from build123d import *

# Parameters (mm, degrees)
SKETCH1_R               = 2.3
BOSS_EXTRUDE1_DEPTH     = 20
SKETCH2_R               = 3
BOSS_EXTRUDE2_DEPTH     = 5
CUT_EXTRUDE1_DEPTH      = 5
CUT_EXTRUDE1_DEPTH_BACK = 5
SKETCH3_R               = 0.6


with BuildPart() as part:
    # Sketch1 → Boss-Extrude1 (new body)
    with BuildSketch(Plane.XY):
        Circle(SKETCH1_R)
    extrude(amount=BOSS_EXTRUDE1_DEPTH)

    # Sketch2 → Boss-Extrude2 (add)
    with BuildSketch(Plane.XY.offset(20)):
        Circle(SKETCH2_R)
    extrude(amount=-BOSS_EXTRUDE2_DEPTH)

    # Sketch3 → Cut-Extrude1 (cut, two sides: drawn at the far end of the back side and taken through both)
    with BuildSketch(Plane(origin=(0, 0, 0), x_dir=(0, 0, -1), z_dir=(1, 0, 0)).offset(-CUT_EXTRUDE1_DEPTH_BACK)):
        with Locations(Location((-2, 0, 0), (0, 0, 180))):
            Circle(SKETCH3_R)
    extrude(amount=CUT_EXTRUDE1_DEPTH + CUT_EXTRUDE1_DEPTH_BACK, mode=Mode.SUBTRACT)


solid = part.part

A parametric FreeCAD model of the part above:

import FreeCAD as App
import Part
import Sketcher
from FreeCAD import Vector
Q = App.Units.Quantity

doc = App.newDocument("Part")
body = doc.addObject("PartDesign::Body", "Body")

# Sketch on XY plane
sketch1 = body.newObject("Sketcher::SketchObject", "Sketch")
sketch1.AttachmentSupport = (doc.getObject("XY_Plane"), [""])
sketch1.MapMode = "FlatFace"
sketch1.addGeometry(Part.Circle(Vector(0, 0, 0), Vector(0, 0, 1), 2.3), False)
sketch1.addConstraint([
    Sketcher.Constraint("Coincident", 0, 3, -1, 1),
    Sketcher.Constraint("Diameter", 0, Q("4.6 mm")),
])
pad1 = body.newObject("PartDesign::Pad", "Pad")
pad1.Profile = sketch1
pad1.Length = 20

# Sketch on XY plane
sketch2 = body.newObject("Sketcher::SketchObject", "Sketch001")
sketch2.AttachmentSupport = (doc.getObject("XY_Plane"), [""])
sketch2.MapMode = "FlatFace"
sketch2.AttachmentOffset = App.Placement(Vector(0, 0, 20), App.Rotation())
sketch2.addGeometry(Part.Circle(Vector(0, 0, 0), Vector(0, 0, 1), 3), False)
sketch2.addConstraint([
    Sketcher.Constraint("Coincident", 0, 3, -1, 1),
    Sketcher.Constraint("Diameter", 0, Q("6 mm")),
])
pad2 = body.newObject("PartDesign::Pad", "Pad001")
pad2.Profile = sketch2
pad2.Length = 5
pad2.Reversed = True

# Sketch on YZ plane
sketch3 = body.newObject("Sketcher::SketchObject", "Sketch002")
sketch3.AttachmentSupport = (doc.getObject("YZ_Plane"), [""])
sketch3.MapMode = "FlatFace"
sketch3.addGeometry(Part.Circle(Vector(0, 2, 0), Vector(0, 0, 1), 0.6), False)
sketch3.addConstraint([
    Sketcher.Constraint("PointOnObject", 0, 3, -2),
    Sketcher.Constraint("Diameter", 0, Q("1.2 mm")),
    Sketcher.Constraint("DistanceY", -1, 1, 0, 3, Q("2 mm")),
])
pocket1 = body.newObject("PartDesign::Pocket", "Pocket")
pocket1.Profile = sketch3
pocket1.Type = "ThroughAll"
pocket1.Midplane = True

doc.recompute()
